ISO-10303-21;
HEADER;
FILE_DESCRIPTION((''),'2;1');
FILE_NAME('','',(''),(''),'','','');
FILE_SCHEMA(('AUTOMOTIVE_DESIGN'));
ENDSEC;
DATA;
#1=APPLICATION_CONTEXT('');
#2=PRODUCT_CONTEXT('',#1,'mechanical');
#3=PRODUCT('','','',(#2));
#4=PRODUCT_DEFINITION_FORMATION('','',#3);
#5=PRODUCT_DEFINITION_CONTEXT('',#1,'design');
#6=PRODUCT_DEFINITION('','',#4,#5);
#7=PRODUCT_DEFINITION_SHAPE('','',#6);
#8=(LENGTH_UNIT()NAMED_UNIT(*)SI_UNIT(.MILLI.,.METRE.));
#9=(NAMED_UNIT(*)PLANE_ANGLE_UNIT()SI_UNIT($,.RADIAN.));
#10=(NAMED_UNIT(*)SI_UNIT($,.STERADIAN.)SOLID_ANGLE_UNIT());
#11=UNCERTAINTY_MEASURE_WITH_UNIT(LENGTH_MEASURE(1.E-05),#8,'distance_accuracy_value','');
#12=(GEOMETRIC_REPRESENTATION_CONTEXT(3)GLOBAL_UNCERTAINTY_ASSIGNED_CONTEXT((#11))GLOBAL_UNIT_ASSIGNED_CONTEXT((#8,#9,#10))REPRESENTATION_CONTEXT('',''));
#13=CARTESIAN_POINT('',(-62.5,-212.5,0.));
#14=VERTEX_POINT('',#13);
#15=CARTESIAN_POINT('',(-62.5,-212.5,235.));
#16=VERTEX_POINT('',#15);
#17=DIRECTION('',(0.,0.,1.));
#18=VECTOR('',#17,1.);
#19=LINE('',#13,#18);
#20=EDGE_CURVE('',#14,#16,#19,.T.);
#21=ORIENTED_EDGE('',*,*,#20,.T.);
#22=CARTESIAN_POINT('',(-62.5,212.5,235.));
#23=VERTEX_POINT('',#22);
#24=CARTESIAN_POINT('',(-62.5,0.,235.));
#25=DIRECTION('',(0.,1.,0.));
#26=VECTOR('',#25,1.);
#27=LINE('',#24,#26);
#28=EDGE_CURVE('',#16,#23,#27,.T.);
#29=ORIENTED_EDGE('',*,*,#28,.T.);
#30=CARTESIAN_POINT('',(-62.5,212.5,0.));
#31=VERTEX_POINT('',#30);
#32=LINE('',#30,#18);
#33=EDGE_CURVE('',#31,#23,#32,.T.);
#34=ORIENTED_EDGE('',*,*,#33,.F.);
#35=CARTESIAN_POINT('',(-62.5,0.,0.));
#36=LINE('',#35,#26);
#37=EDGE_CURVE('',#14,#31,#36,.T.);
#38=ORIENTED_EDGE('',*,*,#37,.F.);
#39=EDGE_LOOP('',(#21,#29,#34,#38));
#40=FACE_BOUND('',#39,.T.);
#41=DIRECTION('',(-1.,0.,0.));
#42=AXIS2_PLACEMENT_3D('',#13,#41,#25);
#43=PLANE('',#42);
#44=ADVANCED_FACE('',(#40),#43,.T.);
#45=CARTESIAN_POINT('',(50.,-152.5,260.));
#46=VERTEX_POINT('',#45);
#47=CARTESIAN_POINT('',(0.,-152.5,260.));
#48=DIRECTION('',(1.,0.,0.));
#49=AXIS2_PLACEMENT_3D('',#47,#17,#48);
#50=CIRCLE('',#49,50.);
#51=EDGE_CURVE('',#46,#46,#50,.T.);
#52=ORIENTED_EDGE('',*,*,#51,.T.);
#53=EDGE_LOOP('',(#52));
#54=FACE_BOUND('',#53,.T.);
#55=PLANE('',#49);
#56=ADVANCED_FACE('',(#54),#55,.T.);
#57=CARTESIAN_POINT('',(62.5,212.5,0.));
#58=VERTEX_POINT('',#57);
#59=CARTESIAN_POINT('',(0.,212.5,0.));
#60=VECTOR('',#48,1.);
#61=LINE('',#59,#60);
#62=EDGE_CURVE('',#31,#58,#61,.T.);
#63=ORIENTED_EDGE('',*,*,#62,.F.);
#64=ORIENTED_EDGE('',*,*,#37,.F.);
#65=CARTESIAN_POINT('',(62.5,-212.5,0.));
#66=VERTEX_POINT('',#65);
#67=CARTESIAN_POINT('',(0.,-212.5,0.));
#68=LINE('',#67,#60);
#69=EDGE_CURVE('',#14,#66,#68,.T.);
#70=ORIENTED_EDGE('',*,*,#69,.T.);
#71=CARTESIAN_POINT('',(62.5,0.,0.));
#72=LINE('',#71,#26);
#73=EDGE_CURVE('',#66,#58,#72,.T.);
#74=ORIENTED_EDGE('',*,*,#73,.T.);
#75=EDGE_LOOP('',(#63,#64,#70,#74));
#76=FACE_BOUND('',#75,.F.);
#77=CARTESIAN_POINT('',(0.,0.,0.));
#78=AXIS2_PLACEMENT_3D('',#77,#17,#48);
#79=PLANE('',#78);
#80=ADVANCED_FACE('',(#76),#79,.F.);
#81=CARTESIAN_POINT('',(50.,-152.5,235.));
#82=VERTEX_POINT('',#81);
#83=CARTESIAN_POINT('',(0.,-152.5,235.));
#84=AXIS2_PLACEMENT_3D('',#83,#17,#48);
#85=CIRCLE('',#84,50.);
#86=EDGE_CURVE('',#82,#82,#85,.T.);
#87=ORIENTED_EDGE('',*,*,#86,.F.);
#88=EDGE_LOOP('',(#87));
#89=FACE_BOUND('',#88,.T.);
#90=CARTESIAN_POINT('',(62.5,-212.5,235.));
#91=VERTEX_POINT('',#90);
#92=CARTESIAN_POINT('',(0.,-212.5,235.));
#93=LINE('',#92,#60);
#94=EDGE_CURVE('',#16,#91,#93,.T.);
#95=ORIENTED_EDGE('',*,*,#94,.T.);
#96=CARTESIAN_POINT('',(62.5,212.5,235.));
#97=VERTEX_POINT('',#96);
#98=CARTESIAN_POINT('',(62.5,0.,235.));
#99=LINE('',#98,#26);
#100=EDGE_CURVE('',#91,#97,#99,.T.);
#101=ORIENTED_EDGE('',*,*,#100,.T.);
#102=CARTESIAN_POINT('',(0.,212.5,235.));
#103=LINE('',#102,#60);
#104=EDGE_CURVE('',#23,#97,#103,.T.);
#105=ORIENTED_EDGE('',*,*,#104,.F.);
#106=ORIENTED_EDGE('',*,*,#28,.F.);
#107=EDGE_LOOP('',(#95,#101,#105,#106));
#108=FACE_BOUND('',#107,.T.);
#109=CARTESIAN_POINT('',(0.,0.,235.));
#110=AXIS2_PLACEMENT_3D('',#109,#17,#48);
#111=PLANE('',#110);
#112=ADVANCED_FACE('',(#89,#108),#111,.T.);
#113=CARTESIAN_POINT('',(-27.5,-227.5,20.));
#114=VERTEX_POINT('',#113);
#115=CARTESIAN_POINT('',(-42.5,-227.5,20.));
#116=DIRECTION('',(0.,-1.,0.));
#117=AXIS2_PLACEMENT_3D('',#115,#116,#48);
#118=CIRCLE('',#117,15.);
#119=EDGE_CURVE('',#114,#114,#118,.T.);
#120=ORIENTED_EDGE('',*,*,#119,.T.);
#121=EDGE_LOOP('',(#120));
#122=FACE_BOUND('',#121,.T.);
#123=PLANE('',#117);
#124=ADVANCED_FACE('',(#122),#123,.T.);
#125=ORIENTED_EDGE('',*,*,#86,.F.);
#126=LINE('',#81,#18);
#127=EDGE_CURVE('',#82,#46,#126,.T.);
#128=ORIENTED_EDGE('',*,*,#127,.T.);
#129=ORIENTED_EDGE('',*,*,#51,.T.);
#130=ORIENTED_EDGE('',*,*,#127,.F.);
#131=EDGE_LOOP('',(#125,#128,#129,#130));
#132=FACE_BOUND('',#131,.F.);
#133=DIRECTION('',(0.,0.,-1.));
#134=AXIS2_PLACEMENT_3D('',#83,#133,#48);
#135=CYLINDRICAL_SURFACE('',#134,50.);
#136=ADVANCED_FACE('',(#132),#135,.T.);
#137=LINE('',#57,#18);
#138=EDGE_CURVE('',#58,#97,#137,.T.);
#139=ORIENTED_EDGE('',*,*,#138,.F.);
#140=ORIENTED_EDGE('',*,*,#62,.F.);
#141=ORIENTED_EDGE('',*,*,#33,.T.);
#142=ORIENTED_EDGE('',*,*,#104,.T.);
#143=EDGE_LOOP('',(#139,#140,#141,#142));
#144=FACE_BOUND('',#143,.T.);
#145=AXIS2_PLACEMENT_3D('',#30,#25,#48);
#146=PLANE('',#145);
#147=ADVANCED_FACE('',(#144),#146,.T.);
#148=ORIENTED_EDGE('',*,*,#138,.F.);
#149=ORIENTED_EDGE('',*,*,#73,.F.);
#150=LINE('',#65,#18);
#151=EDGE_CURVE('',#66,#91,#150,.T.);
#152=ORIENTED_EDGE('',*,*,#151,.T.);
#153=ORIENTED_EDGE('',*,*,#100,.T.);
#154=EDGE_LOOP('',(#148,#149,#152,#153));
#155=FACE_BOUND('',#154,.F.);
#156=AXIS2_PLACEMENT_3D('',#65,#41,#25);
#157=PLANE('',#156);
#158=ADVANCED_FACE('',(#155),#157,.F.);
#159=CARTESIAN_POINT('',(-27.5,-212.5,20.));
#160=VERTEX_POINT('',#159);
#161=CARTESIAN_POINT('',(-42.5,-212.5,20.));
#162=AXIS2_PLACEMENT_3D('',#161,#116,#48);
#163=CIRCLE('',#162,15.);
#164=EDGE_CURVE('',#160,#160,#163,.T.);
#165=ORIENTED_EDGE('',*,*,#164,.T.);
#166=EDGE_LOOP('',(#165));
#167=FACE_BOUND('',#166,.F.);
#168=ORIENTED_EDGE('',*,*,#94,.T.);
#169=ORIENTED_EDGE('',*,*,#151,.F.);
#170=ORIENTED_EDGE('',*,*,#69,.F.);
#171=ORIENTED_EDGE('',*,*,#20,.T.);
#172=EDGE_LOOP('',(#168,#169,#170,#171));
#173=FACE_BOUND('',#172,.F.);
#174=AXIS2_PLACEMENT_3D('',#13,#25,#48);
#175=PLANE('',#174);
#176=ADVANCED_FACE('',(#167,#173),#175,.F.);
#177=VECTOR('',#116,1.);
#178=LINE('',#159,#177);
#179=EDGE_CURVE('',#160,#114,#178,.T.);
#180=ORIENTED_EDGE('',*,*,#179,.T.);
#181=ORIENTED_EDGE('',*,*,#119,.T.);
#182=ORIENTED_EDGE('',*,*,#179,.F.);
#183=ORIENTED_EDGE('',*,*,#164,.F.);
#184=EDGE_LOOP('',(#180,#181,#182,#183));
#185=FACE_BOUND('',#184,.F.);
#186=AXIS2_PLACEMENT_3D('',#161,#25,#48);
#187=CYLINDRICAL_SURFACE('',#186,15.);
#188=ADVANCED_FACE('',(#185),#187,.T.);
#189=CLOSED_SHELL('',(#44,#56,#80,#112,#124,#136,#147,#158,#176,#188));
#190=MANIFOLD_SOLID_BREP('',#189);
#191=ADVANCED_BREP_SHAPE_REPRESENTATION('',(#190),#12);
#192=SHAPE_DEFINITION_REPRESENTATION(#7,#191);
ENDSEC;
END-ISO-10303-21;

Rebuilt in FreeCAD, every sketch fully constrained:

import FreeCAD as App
import Part
import Sketcher

V = App.Vector
Q = App.Units.Quantity


def add_polygon(sketch, points):
    """Adds a closed chain of lines whose ends are joined by coincident constraints."""
    first, n = sketch.GeometryCount, len(points)
    for a, b in zip(points, points[1:] + points[:1]):
        sketch.addGeometry(Part.LineSegment(App.Vector(*a, 0), App.Vector(*b, 0)), False)
    for i in range(n):
        sketch.addConstraint(Sketcher.Constraint("Coincident", first + i, 2, first + (i + 1) % n, 1))

doc = App.newDocument("Part")
body = doc.addObject("PartDesign::Body", "Body")

sketch1 = body.newObject("Sketcher::SketchObject", "Sketch")
sketch1.AttachmentSupport = (doc.getObject("XY_Plane"), [""])
sketch1.MapMode = "FlatFace"
add_polygon(sketch1, [(-62.5, 212.5), (-62.5, -212.5), (62.5, -212.5), (62.5, 212.5)])
sketch1.addConstraint(Sketcher.Constraint("Vertical", 0))
sketch1.addConstraint(Sketcher.Constraint("Horizontal", 1))
sketch1.addConstraint(Sketcher.Constraint("Vertical", 2))
sketch1.addConstraint(Sketcher.Constraint("Horizontal", 3))
sketch1.addConstraint(Sketcher.Constraint("Symmetric", 0, 2, 2, 2, -1, 1))
sketch1.addConstraint(Sketcher.Constraint("DistanceX", 1, 1, 1, 2, Q("125 mm")))
sketch1.addConstraint(Sketcher.Constraint("DistanceY", 0, 2, 0, 1, Q("425 mm")))
pad1 = body.newObject("PartDesign::Pad", "Pad")
pad1.Profile = sketch1
pad1.Length = 235

sketch2 = body.newObject("Sketcher::SketchObject", "Sketch001")
sketch2.AttachmentSupport = (doc.getObject("XZ_Plane"), [""])
sketch2.MapMode = "FlatFace"
sketch2.AttachmentOffset = App.Placement(V(0, 0, 212.5), App.Rotation())
sketch2.addGeometry(Part.Circle(V(-42.5, 20, 0), V(0, 0, 1), 15), False)
sketch2.addConstraint(Sketcher.Constraint("Diameter", 0, Q("30 mm")))
sketch2.addConstraint(Sketcher.Constraint("DistanceY", -1, 1, 0, 3, Q("20 mm")))
sketch2.addConstraint(Sketcher.Constraint("DistanceX", 0, 3, -1, 1, Q("42.5 mm")))
pad2 = body.newObject("PartDesign::Pad", "Pad001")
pad2.Profile = sketch2
pad2.Length = 15

sketch3 = body.newObject("Sketcher::SketchObject", "Sketch002")
sketch3.AttachmentSupport = (doc.getObject("XY_Plane"), [""])
sketch3.MapMode = "FlatFace"
sketch3.AttachmentOffset = App.Placement(V(0, 0, 235), App.Rotation())
sketch3.addGeometry(Part.Circle(V(0, -152.5, 0), V(0, 0, 1), 50), False)
sketch3.addConstraint(Sketcher.Constraint("PointOnObject", 0, 3, -2))
sketch3.addConstraint(Sketcher.Constraint("Diameter", 0, Q("100 mm")))
sketch3.addConstraint(Sketcher.Constraint("DistanceY", 0, 3, -1, 1, Q("152.5 mm")))
pad3 = body.newObject("PartDesign::Pad", "Pad002")
pad3.Profile = sketch3
pad3.Length = 25

doc.recompute()
